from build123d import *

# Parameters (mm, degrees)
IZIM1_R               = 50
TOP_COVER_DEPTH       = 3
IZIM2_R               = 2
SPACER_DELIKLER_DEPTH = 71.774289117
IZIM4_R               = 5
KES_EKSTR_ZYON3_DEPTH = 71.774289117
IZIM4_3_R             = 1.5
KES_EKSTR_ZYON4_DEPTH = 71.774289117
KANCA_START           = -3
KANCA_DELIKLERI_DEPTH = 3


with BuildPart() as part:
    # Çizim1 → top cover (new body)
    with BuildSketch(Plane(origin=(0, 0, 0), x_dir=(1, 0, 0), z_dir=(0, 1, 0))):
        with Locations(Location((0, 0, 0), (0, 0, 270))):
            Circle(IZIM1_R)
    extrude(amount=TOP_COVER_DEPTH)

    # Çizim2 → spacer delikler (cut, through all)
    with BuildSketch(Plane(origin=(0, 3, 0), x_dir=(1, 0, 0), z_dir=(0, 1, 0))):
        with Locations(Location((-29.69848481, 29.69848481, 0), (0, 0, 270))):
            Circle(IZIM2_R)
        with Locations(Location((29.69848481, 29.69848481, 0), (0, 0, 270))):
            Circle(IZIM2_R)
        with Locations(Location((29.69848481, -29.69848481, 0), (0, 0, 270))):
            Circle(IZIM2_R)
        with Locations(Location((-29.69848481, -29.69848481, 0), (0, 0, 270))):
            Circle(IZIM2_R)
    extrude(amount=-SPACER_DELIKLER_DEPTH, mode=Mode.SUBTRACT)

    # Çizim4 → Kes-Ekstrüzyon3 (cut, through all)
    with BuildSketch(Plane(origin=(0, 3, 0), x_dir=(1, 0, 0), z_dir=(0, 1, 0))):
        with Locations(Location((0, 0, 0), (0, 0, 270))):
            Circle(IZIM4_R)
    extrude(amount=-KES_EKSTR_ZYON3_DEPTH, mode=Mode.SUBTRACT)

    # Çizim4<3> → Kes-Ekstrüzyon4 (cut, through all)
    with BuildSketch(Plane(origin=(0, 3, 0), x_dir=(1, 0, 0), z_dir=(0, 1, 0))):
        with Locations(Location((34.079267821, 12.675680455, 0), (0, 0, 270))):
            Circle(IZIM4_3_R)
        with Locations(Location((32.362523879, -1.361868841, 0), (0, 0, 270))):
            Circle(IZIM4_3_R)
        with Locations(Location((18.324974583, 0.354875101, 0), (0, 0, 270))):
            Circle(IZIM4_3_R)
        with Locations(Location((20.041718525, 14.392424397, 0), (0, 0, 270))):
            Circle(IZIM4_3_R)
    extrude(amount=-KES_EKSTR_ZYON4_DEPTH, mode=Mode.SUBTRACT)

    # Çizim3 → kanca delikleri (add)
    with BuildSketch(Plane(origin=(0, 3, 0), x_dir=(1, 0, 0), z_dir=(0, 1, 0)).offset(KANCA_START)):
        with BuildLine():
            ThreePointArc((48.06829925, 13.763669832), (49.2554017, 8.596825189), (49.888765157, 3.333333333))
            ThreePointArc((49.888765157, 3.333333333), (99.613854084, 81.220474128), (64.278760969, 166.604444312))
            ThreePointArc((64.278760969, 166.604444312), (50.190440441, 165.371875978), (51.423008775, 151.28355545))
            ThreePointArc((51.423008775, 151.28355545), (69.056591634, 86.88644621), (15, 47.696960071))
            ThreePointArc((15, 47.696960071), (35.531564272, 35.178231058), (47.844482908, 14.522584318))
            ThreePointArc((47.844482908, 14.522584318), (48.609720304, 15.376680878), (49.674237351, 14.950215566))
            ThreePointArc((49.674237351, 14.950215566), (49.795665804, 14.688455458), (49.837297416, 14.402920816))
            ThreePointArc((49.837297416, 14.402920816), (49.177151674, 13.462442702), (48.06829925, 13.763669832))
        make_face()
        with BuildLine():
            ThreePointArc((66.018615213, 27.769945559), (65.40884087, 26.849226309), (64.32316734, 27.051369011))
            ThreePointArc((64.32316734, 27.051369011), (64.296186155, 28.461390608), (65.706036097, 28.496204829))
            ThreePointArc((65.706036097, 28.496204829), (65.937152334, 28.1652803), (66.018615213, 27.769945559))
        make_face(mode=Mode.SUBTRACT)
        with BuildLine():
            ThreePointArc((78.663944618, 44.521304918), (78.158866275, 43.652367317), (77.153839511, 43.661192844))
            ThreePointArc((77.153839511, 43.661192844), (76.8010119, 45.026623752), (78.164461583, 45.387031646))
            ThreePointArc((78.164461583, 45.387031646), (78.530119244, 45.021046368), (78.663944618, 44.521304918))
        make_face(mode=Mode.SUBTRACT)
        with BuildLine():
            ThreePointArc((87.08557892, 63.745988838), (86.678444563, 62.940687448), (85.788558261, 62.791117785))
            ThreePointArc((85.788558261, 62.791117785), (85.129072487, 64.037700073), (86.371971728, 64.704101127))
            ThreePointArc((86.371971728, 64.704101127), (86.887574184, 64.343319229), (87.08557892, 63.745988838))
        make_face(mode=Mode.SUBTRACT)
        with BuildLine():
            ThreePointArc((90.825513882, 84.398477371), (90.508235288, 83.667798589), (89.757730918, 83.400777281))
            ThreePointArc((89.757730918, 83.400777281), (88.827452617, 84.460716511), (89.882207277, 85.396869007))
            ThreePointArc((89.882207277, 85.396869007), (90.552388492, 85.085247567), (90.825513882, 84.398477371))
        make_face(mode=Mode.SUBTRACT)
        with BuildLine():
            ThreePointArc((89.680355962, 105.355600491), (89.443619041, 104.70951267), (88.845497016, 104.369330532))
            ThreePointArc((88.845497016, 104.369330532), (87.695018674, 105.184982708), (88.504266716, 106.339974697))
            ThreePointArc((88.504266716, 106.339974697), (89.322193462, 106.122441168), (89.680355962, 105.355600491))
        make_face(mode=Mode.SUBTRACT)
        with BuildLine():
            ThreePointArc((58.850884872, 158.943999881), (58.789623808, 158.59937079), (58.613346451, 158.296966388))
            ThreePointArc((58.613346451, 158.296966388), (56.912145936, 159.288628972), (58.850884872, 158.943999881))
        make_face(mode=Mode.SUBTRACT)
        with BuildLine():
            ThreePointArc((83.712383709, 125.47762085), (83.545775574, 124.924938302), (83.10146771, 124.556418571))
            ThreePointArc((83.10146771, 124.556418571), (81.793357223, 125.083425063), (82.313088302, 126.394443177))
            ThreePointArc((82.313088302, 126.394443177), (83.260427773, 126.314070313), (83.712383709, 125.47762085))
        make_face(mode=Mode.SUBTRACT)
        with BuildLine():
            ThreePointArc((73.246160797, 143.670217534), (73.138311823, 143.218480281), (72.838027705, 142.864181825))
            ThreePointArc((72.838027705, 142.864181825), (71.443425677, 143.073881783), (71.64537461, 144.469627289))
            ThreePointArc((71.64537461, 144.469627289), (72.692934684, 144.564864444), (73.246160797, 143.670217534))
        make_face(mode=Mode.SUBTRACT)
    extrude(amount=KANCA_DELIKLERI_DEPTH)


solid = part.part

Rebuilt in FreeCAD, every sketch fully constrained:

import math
import FreeCAD as App
import Part
import Sketcher

V = App.Vector
Q = App.Units.Quantity

doc = App.newDocument("Part")
body = doc.addObject("PartDesign::Body", "Body")

sketch1 = body.newObject("Sketcher::SketchObject", "Sketch")
sketch1.AttachmentSupport = (doc.getObject("XZ_Plane"), [""])
sketch1.MapMode = "FlatFace"
sketch1.addGeometry(Part.Circle(V(0, 0, 0), V(0, 0, 1), 50), False)
sketch1.addConstraint([
    Sketcher.Constraint("Coincident", 0, 3, -1, 1),
    Sketcher.Constraint("Diameter", 0, Q("100 mm")),
])
pad1 = body.newObject("PartDesign::Pad", "Pad")
pad1.Profile = sketch1
pad1.Length = 3
pad1.Reversed = True

sketch2 = body.newObject("Sketcher::SketchObject", "Sketch001")
sketch2.AttachmentSupport = (doc.getObject("XZ_Plane"), [""])
sketch2.MapMode = "FlatFace"
sketch2.AttachmentOffset = App.Placement(V(0, 0, -3), App.Rotation())
sketch2.addGeometry([
    Part.Circle(V(-29.7, -29.7, 0), V(0, 0, 1), 2),
    Part.Circle(V(29.7, -29.7, 0), V(0, 0, 1), 2),
    Part.Circle(V(29.7, 29.7, 0), V(0, 0, 1), 2),
    Part.Circle(V(-29.7, 29.7, 0), V(0, 0, 1), 2),
], False)
sketch2.addConstraint([
    Sketcher.Constraint("Equal", 0, 1),
    Sketcher.Constraint("Equal", 1, 2),
    Sketcher.Constraint("Equal", 2, 3),
    Sketcher.Constraint("Symmetric", 0, 3, 2, 3, -1, 1),
    Sketcher.Constraint("Symmetric", 1, 3, 3, 3, -1, 1),
    Sketcher.Constraint("Symmetric", 0, 3, 1, 3, -2),
    Sketcher.Constraint("Diameter", 0, Q("4 mm")),
    Sketcher.Constraint("DistanceX", 0, 3, 1, 3, Q("59.39697 mm")),
    Sketcher.Constraint("DistanceY", 1, 3, 2, 3, Q("59.39697 mm")),
])
pocket1 = body.newObject("PartDesign::Pocket", "Pocket")
pocket1.Profile = sketch2
pocket1.Type = "ThroughAll"
pocket1.Reversed = True

sketch3 = body.newObject("Sketcher::SketchObject", "Sketch002")
sketch3.AttachmentSupport = (doc.getObject("XZ_Plane"), [""])
sketch3.MapMode = "FlatFace"
sketch3.AttachmentOffset = App.Placement(V(0, 0, -3), App.Rotation())
sketch3.addGeometry(Part.Circle(V(0, 0, 0), V(0, 0, 1), 5), False)
sketch3.addConstraint([
    Sketcher.Constraint("Coincident", 0, 3, -1, 1),
    Sketcher.Constraint("Diameter", 0, Q("10 mm")),
])
pocket2 = body.newObject("PartDesign::Pocket", "Pocket001")
pocket2.Profile = sketch3
pocket2.Type = "ThroughAll"
pocket2.Reversed = True

sketch4 = body.newObject("Sketcher::SketchObject", "Sketch003")
sketch4.AttachmentSupport = (doc.getObject("XZ_Plane"), [""])
sketch4.MapMode = "FlatFace"
sketch4.AttachmentOffset = App.Placement(V(0, 0, -3), App.Rotation())
sketch4.addGeometry([
    Part.Circle(V(34.1, -12.7, 0), V(0, 0, 1), 1.5),
    Part.Circle(V(32.4, 1.4, 0), V(0, 0, 1), 1.5),
    Part.Circle(V(18.3, -0.4, 0), V(0, 0, 1), 1.5),
    Part.Circle(V(20, -14.4, 0), V(0, 0, 1), 1.5),
], False)
sketch4.addConstraint([
    Sketcher.Constraint("Equal", 0, 1),
    Sketcher.Constraint("Equal", 1, 2),
    Sketcher.Constraint("Equal", 2, 3),
    Sketcher.Constraint("Diameter", 0, Q("3 mm")),
    Sketcher.Constraint("DistanceY", 0, 3, -1, 1, Q("12.67568 mm")),
    Sketcher.Constraint("DistanceY", -1, 1, 1, 3, Q("1.361869 mm")),
    Sketcher.Constraint("DistanceX", -1, 1, 3, 3, Q("20.041719 mm")),
    Sketcher.Constraint("DistanceX", 2, 3, 1, 3, Q("14.037549 mm")),
    Sketcher.Constraint("DistanceY", 3, 3, 2, 3, Q("14.037549 mm")),
    Sketcher.Constraint("DistanceX", 3, 3, 0, 3, Q("14.037549 mm")),
    Sketcher.Constraint("DistanceX", -1, 1, 1, 3, Q("32.362524 mm")),
    Sketcher.Constraint("DistanceY", 2, 3, -1, 1, Q("0.354875 mm")),
])
pocket3 = body.newObject("PartDesign::Pocket", "Pocket002")
pocket3.Profile = sketch4
pocket3.Type = "ThroughAll"
pocket3.Reversed = True

sketch5 = body.newObject("Sketcher::SketchObject", "Sketch004")
sketch5.AttachmentSupport = (doc.getObject("XZ_Plane"), [""])
sketch5.MapMode = "FlatFace"
sketch5.addGeometry([
    Part.ArcOfCircle(Part.Circle(V(0, 0, 0), V(0, 0, 1), 50), math.radians(-15.98), math.radians(-3.82)),
    Part.ArcOfCircle(Part.Circle(V(0, -90, 0), V(0, 0, 1), 100), math.radians(-50), math.radians(60)),
    Part.ArcOfCircle(Part.Circle(V(57.9, -158.9, 0), V(0, 0, 1), 10), math.radians(130), math.radians(310)),
    Part.ArcOfCircle(Part.Circle(V(13.7, -106.3, 0), V(0, 0, 1), 58.7), math.radians(-50), math.radians(89)),
    Part.ArcOfCircle(Part.Circle(V(0, 0, 0), V(0, 0, 1), 50), math.radians(-73), math.radians(-17)),
    Part.ArcOfCircle(Part.Circle(V(48.8, -14.4, 0), V(0, 0, 1), 1), math.radians(-173), math.radians(-33)),
    Part.ArcOfCircle(Part.Circle(V(48.8, -14.4, 0), V(0, 0, 1), 1), math.radians(-33), math.radians(0)),
    Part.ArcOfCircle(Part.Circle(V(48.8, -14.4, 0), V(0, 0, 1), 1), math.radians(0), math.radians(140)),
    Part.ArcOfCircle(Part.Circle(V(65, -27.8, 0), V(0, 0, 1), 1), math.radians(-47), math.radians(0)),
    Part.ArcOfCircle(Part.Circle(V(65, -27.8, 0), V(0, 0, 1), 1), math.radians(0), math.radians(134)),
    Part.ArcOfCircle(Part.Circle(V(65, -27.8, 0), V(0, 0, 1), 1), math.radians(134), math.radians(313)),
    Part.ArcOfCircle(Part.Circle(V(77.7, -44.5, 0), V(0, 0, 1), 1), math.radians(-60), math.radians(0)),
    Part.ArcOfCircle(Part.Circle(V(77.7, -44.5, 0), V(0, 0, 1), 1), math.radians(0), math.radians(121)),
    Part.ArcOfCircle(Part.Circle(V(77.7, -44.5, 0), V(0, 0, 1), 1), math.radians(121), math.radians(300)),
    Part.ArcOfCircle(Part.Circle(V(86.1, -63.7, 0), V(0, 0, 1), 1), math.radians(-73), math.radians(0)),
    Part.ArcOfCircle(Part.Circle(V(86.1, -63.7, 0), V(0, 0, 1), 1), math.radians(0), math.radians(107)),
    Part.ArcOfCircle(Part.Circle(V(86.1, -63.7, 0), V(0, 0, 1), 1), math.radians(107), math.radians(287)),
    Part.ArcOfCircle(Part.Circle(V(89.8, -84.4, 0), V(0, 0, 1), 1), math.radians(-87), math.radians(0)),
    Part.ArcOfCircle(Part.Circle(V(89.8, -84.4, 0), V(0, 0, 1), 1), math.radians(0), math.radians(94)),
    Part.ArcOfCircle(Part.Circle(V(89.8, -84.4, 0), V(0, 0, 1), 1), math.radians(94), math.radians(273)),
    Part.ArcOfCircle(Part.Circle(V(57.9, -158.9, 0), V(0, 0, 1), 1), math.radians(40), math.radians(360)),
    Part.ArcOfCircle(Part.Circle(V(57.9, -158.9, 0), V(0, 0, 1), 1), math.radians(0), math.radians(40)),
    Part.ArcOfCircle(Part.Circle(V(72.2, -143.7, 0), V(0, 0, 1), 1), math.radians(-127), math.radians(0)),
    Part.ArcOfCircle(Part.Circle(V(72.2, -143.7, 0), V(0, 0, 1), 1), math.radians(0), math.radians(54)),
    Part.ArcOfCircle(Part.Circle(V(72.2, -143.7, 0), V(0, 0, 1), 1), math.radians(54), math.radians(233)),
    Part.ArcOfCircle(Part.Circle(V(88.7, -105.4, 0), V(0, 0, 1), 1), math.radians(-100), math.radians(0)),
    Part.ArcOfCircle(Part.Circle(V(88.7, -105.4, 0), V(0, 0, 1), 1), math.radians(0), math.radians(80)),
    Part.ArcOfCircle(Part.Circle(V(88.7, -105.4, 0), V(0, 0, 1), 1), math.radians(80), math.radians(260)),
    Part.ArcOfCircle(Part.Circle(V(82.7, -125.5, 0), V(0, 0, 1), 1), math.radians(-114), math.radians(0)),
    Part.ArcOfCircle(Part.Circle(V(82.7, -125.5, 0), V(0, 0, 1), 1), math.radians(0), math.radians(67)),
    Part.ArcOfCircle(Part.Circle(V(82.7, -125.5, 0), V(0, 0, 1), 1), math.radians(67), math.radians(246)),
], False)
sketch5.addConstraint([
    Sketcher.Constraint("Coincident", 0, 2, 1, 2),
    Sketcher.Constraint("Tangent", 1, 1, 2, 2),
    Sketcher.Constraint("Tangent", 2, 1, 3, 1),
    Sketcher.Constraint("Coincident", 3, 2, 4, 1),
    Sketcher.Constraint("Coincident", 4, 2, 5, 1),
    Sketcher.Constraint("Tangent", 5, 2, 6, 1),
    Sketcher.Constraint("Tangent", 6, 2, 7, 1),
    Sketcher.Constraint("Coincident", 7, 2, 0, 1),
    Sketcher.Constraint("Tangent", 8, 2, 9, 1),
    Sketcher.Constraint("Tangent", 9, 2, 10, 1),
    Sketcher.Constraint("Tangent", 10, 2, 8, 1),
    Sketcher.Constraint("Tangent", 11, 2, 12, 1),
    Sketcher.Constraint("Tangent", 12, 2, 13, 1),
    Sketcher.Constraint("Tangent", 13, 2, 11, 1),
    Sketcher.Constraint("Tangent", 14, 2, 15, 1),
    Sketcher.Constraint("Tangent", 15, 2, 16, 1),
    Sketcher.Constraint("Tangent", 16, 2, 14, 1),
    Sketcher.Constraint("Tangent", 17, 2, 18, 1),
    Sketcher.Constraint("Tangent", 18, 2, 19, 1),
    Sketcher.Constraint("Tangent", 19, 2, 17, 1),
    Sketcher.Constraint("Tangent", 20, 1, 21, 2),
    Sketcher.Constraint("Coincident", 21, 1, 20, 2),
    Sketcher.Constraint("Tangent", 22, 2, 23, 1),
    Sketcher.Constraint("Tangent", 23, 2, 24, 1),
    Sketcher.Constraint("Tangent", 24, 2, 22, 1),
    Sketcher.Constraint("Tangent", 25, 2, 26, 1),
    Sketcher.Constraint("Tangent", 26, 2, 27, 1),
    Sketcher.Constraint("Tangent", 27, 2, 25, 1),
    Sketcher.Constraint("Tangent", 28, 2, 29, 1),
    Sketcher.Constraint("Tangent", 29, 2, 30, 1),
    Sketcher.Constraint("Tangent", 30, 2, 28, 1),
    Sketcher.Constraint("Coincident", 0, 3, -1, 1),
    Sketcher.Constraint("Coincident", 4, 3, -1, 1),
    Sketcher.Constraint("Coincident", 7, 3, 5, 3),
    Sketcher.Constraint("Coincident", 20, 3, 2, 3),
    Sketcher.Constraint("Equal", 0, 4),
    Sketcher.Constraint("Equal", 7, 8),
    Sketcher.Constraint("Equal", 10, 11),
    Sketcher.Constraint("Equal", 13, 14),
    Sketcher.Constraint("Equal", 16, 17),
    Sketcher.Constraint("Equal", 19, 20),
    Sketcher.Constraint("Equal", 21, 22),
    Sketcher.Constraint("Equal", 24, 25),
    Sketcher.Constraint("Equal", 27, 28),
    Sketcher.Constraint("PointOnObject", 1, 3, -2),
    Sketcher.Constraint("Horizontal", 7, 3, 6, 2),
    Sketcher.Constraint("Horizontal", 10, 3, 8, 2),
    Sketcher.Constraint("Horizontal", 13, 3, 11, 2),
    Sketcher.Constraint("Horizontal", 16, 3, 14, 2),
    Sketcher.Constraint("Horizontal", 19, 3, 17, 2),
    Sketcher.Constraint("Horizontal", 20, 3, 21, 1),
    Sketcher.Constraint("Horizontal", 24, 3, 22, 2),
    Sketcher.Constraint("Horizontal", 27, 3, 25, 2),
    Sketcher.Constraint("Horizontal", 30, 3, 28, 2),
    Sketcher.Constraint("Radius", 0, Q("50 mm")),
    Sketcher.Constraint("Radius", 1, Q("100 mm")),
    Sketcher.Constraint("Radius", 2, Q("10 mm")),
    Sketcher.Constraint("Radius", 5, Q("1 mm")),
    Sketcher.Constraint("DistanceY", 1, 3, -1, 1, Q("90 mm")),
    Sketcher.Constraint("DistanceX", -1, 1, 3, 2, Q("15 mm")),
    Sketcher.Constraint("DistanceY", 2, 3, -1, 1, Q("158.944 mm")),
    Sketcher.Constraint("Radius", 3, Q("58.662545 mm")),
    Sketcher.Constraint("DistanceY", 25, 3, -1, 1, Q("105.3556 mm")),
    Sketcher.Constraint("DistanceX", -1, 1, 7, 2, Q("48.068299 mm")),
    Sketcher.Constraint("DistanceY", 16, 2, -1, 1, Q("64.704101 mm")),
    Sketcher.Constraint("DistanceY", 5, 3, -1, 1, Q("14.402921 mm")),
    Sketcher.Constraint("DistanceX", -1, 1, 14, 3, Q("86.085579 mm")),
    Sketcher.Constraint("DistanceY", 14, 3, -1, 1, Q("63.745989 mm")),
    Sketcher.Constraint("DistanceX", -1, 1, 22, 3, Q("72.246161 mm")),
    Sketcher.Constraint("DistanceY", 28, 3, -1, 1, Q("125.477621 mm")),
    Sketcher.Constraint("DistanceY", 9, 2, -1, 1, Q("27.051369 mm")),
    Sketcher.Constraint("DistanceX", -1, 1, 12, 2, Q("77.15384 mm")),
    Sketcher.Constraint("DistanceX", -1, 1, 13, 2, Q("78.164462 mm")),
    Sketcher.Constraint("DistanceY", 13, 2, -1, 1, Q("45.387032 mm")),
    Sketcher.Constraint("DistanceX", -1, 1, 15, 2, Q("85.788558 mm")),
    Sketcher.Constraint("DistanceX", -1, 1, 18, 2, Q("89.757731 mm")),
    Sketcher.Constraint("DistanceY", 19, 2, -1, 1, Q("85.396869 mm")),
    Sketcher.Constraint("DistanceY", 23, 2, -1, 1, Q("142.864182 mm")),
    Sketcher.Constraint("DistanceY", 26, 2, -1, 1, Q("104.369331 mm")),
    Sketcher.Constraint("DistanceY", 29, 2, -1, 1, Q("124.556419 mm")),
    Sketcher.Constraint("DistanceX", -1, 1, 30, 2, Q("82.313088 mm")),
    Sketcher.Constraint("DistanceX", -1, 1, 8, 3, Q("65.018615 mm")),
    Sketcher.Constraint("DistanceY", 8, 3, -1, 1, Q("27.769946 mm")),
    Sketcher.Constraint("DistanceX", -1, 1, 11, 3, Q("77.663945 mm")),
    Sketcher.Constraint("DistanceX", -1, 1, 17, 3, Q("89.825514 mm")),
    Sketcher.Constraint("DistanceY", 17, 3, -1, 1, Q("84.398477 mm")),
    Sketcher.Constraint("DistanceY", 22, 3, -1, 1, Q("143.670218 mm")),
    Sketcher.Constraint("DistanceX", -1, 1, 25, 3, Q("88.680356 mm")),
    Sketcher.Constraint("DistanceX", -1, 1, 28, 3, Q("82.712384 mm")),
    Sketcher.Constraint("DistanceX", -1, 1, 5, 2, Q("49.674237 mm")),
    Sketcher.Constraint("DistanceX", -1, 1, 10, 2, Q("65.706036 mm")),
    Sketcher.Constraint("DistanceX", -1, 1, 20, 1, Q("58.613346 mm")),
    Sketcher.Constraint("DistanceX", -1, 1, 24, 2, Q("71.645375 mm")),
    Sketcher.Constraint("DistanceX", -1, 1, 27, 2, Q("88.504267 mm")),
])
pad2 = body.newObject("PartDesign::Pad", "Pad001")
pad2.Profile = sketch5
pad2.Length = 3
pad2.Reversed = True

doc.recompute()
